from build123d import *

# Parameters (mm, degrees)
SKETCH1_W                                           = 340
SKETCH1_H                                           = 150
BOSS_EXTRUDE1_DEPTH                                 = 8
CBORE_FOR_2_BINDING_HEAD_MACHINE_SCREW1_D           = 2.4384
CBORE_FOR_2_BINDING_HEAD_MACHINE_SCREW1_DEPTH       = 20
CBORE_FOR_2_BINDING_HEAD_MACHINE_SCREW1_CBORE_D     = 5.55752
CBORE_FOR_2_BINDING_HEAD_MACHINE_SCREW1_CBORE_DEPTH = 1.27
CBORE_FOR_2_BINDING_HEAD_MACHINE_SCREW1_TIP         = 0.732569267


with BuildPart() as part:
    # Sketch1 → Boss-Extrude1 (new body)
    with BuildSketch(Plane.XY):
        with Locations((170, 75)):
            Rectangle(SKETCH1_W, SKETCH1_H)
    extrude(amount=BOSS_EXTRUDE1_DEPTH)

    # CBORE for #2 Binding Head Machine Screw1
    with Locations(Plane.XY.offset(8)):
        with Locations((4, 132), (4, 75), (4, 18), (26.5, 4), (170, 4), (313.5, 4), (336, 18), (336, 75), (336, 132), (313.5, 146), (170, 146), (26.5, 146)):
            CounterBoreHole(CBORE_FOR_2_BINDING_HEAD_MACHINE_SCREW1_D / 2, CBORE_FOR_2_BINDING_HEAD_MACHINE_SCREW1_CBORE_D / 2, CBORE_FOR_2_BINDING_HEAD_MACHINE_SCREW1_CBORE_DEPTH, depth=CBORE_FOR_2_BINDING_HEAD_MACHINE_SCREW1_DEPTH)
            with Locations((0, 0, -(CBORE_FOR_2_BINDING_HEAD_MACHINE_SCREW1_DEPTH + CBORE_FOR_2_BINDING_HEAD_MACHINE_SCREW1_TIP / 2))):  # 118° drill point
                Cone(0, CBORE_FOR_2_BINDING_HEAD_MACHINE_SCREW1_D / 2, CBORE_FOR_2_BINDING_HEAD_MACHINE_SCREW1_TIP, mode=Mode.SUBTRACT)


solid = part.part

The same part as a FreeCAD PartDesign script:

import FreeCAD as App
import Part
import Sketcher
from FreeCAD import Vector

doc = App.newDocument("Part")
body = doc.addObject("PartDesign::Body", "Body")

sketch1 = body.newObject("Sketcher::SketchObject", "Sketch")
sketch1.AttachmentSupport = (doc.getObject("XY_Plane"), [""])
sketch1.MapMode = "FlatFace"
sketch1.addGeometry(Part.LineSegment(Vector(0, 150, 0), Vector(0, 0, 0)), False)
sketch1.addGeometry(Part.LineSegment(Vector(0, 0, 0), Vector(340, 0, 0)), False)
sketch1.addGeometry(Part.LineSegment(Vector(340, 0, 0), Vector(340, 150, 0)), False)
sketch1.addGeometry(Part.LineSegment(Vector(340, 150, 0), Vector(0, 150, 0)), False)
sketch1.addConstraint(Sketcher.Constraint("Coincident", 0, 2, 1, 1))
sketch1.addConstraint(Sketcher.Constraint("Coincident", 1, 2, 2, 1))
sketch1.addConstraint(Sketcher.Constraint("Coincident", 2, 2, 3, 1))
sketch1.addConstraint(Sketcher.Constraint("Coincident", 3, 2, 0, 1))
sketch1.addConstraint(Sketcher.Constraint("Vertical", 0))
sketch1.addConstraint(Sketcher.Constraint("Horizontal", 1))
sketch1.addConstraint(Sketcher.Constraint("Vertical", 2))
sketch1.addConstraint(Sketcher.Constraint("Horizontal", 3))
sketch1.addConstraint(Sketcher.Constraint("Coincident", 0, 2, -1, 1))
sketch1.addConstraint(Sketcher.Constraint("DistanceX", 1, 1, 1, 2, 340.0))
sketch1.addConstraint(Sketcher.Constraint("DistanceY", 0, 2, 0, 1, 150.0))
pad1 = body.newObject("PartDesign::Pad", "Pad")
pad1.Profile = sketch1
pad1.Length = 8

sketch2 = body.newObject("Sketcher::SketchObject", "Sketch001")
sketch2.AttachmentSupport = (doc.getObject("XY_Plane"), [""])
sketch2.MapMode = "FlatFace"
sketch2.AttachmentOffset = App.Placement(Vector(0, 0, 8), App.Rotation())
sketch2.addGeometry(Part.Circle(Vector(4, 132, 0), Vector(0, 0, 1), 1.2192), False)
sketch2.addGeometry(Part.Circle(Vector(4, 75, 0), Vector(0, 0, 1), 1.2192), False)
sketch2.addGeometry(Part.Circle(Vector(4, 18, 0), Vector(0, 0, 1), 1.2192), False)
sketch2.addGeometry(Part.Circle(Vector(26.5, 4, 0), Vector(0, 0, 1), 1.2192), False)
sketch2.addGeometry(Part.Circle(Vector(170, 4, 0), Vector(0, 0, 1), 1.2192), False)
sketch2.addGeometry(Part.Circle(Vector(313.5, 4, 0), Vector(0, 0, 1), 1.2192), False)
sketch2.addGeometry(Part.Circle(Vector(336, 18, 0), Vector(0, 0, 1), 1.2192), False)
sketch2.addGeometry(Part.Circle(Vector(336, 75, 0), Vector(0, 0, 1), 1.2192), False)
sketch2.addGeometry(Part.Circle(Vector(336, 132, 0), Vector(0, 0, 1), 1.2192), False)
sketch2.addGeometry(Part.Circle(Vector(313.5, 146, 0), Vector(0, 0, 1), 1.2192), False)
sketch2.addGeometry(Part.Circle(Vector(170, 146, 0), Vector(0, 0, 1), 1.2192), False)
sketch2.addGeometry(Part.Circle(Vector(26.5, 146, 0), Vector(0, 0, 1), 1.2192), False)
sketch2.addConstraint(Sketcher.Constraint("Equal", 0, 1))
sketch2.addConstraint(Sketcher.Constraint("Equal", 1, 2))
sketch2.addConstraint(Sketcher.Constraint("Equal", 2, 3))
sketch2.addConstraint(Sketcher.Constraint("Equal", 3, 4))
sketch2.addConstraint(Sketcher.Constraint("Equal", 4, 5))
sketch2.addConstraint(Sketcher.Constraint("Equal", 5, 6))
sketch2.addConstraint(Sketcher.Constraint("Equal", 6, 7))
sketch2.addConstraint(Sketcher.Constraint("Equal", 7, 8))
sketch2.addConstraint(Sketcher.Constraint("Equal", 8, 9))
sketch2.addConstraint(Sketcher.Constraint("Equal", 9, 10))
sketch2.addConstraint(Sketcher.Constraint("Equal", 10, 11))
sketch2.addConstraint(Sketcher.Constraint("Horizontal", 3, 3, 4, 3))
sketch2.addConstraint(Sketcher.Constraint("Horizontal", 4, 3, 5, 3))
sketch2.addConstraint(Sketcher.Constraint("Horizontal", 2, 3, 6, 3))
sketch2.addConstraint(Sketcher.Constraint("Horizontal", 1, 3, 7, 3))
sketch2.addConstraint(Sketcher.Constraint("Horizontal", 0, 3, 8, 3))
sketch2.addConstraint(Sketcher.Constraint("Horizontal", 9, 3, 10, 3))
sketch2.addConstraint(Sketcher.Constraint("Horizontal", 10, 3, 11, 3))
sketch2.addConstraint(Sketcher.Constraint("Vertical", 0, 3, 1, 3))
sketch2.addConstraint(Sketcher.Constraint("Vertical", 1, 3, 2, 3))
sketch2.addConstraint(Sketcher.Constraint("Vertical", 6, 3, 7, 3))
sketch2.addConstraint(Sketcher.Constraint("Vertical", 7, 3, 8, 3))
sketch2.addConstraint(Sketcher.Constraint("Vertical", 5, 3, 9, 3))
sketch2.addConstraint(Sketcher.Constraint("Vertical", 4, 3, 10, 3))
sketch2.addConstraint(Sketcher.Constraint("Vertical", 3, 3, 11, 3))
sketch2.addConstraint(Sketcher.Constraint("DistanceX", -1, 1, 0, 3, 4.0))
sketch2.addConstraint(Sketcher.Constraint("DistanceY", -1, 1, 0, 3, 132.0))
sketch2.addConstraint(Sketcher.Constraint("DistanceY", -1, 1, 1, 3, 75.0))
sketch2.addConstraint(Sketcher.Constraint("DistanceY", -1, 1, 2, 3, 18.0))
sketch2.addConstraint(Sketcher.Constraint("DistanceY", -1, 1, 3, 3, 4.0))
sketch2.addConstraint(Sketcher.Constraint("DistanceX", -1, 1, 4, 3, 170.0))
sketch2.addConstraint(Sketcher.Constraint("DistanceX", -1, 1, 6, 3, 336.0))
sketch2.addConstraint(Sketcher.Constraint("DistanceY", -1, 1, 9, 3, 146.0))
sketch2.addConstraint(Sketcher.Constraint("DistanceX", 3, 3, 5, 3, 287.0))
sketch2.addConstraint(Sketcher.Constraint("Diameter", 0, 2.4384))
sketch2.addConstraint(Sketcher.Constraint("DistanceX", -1, 1, 3, 3, 26.5))
doc.recompute()
hole = body.newObject("PartDesign::Hole", "Hole")
hole.Profile = sketch2
hole.ThreadType = "None"
hole.Diameter = 2.4384
hole.DepthType = "Dimension"
hole.Depth = 20
hole.DrillPoint = "Angled"
hole.DrillPointAngle = 118
hole.HoleCutType = "Counterbore"
hole.HoleCutDiameter = 5.55752
hole.HoleCutDepth = 1.27

doc.recompute()
